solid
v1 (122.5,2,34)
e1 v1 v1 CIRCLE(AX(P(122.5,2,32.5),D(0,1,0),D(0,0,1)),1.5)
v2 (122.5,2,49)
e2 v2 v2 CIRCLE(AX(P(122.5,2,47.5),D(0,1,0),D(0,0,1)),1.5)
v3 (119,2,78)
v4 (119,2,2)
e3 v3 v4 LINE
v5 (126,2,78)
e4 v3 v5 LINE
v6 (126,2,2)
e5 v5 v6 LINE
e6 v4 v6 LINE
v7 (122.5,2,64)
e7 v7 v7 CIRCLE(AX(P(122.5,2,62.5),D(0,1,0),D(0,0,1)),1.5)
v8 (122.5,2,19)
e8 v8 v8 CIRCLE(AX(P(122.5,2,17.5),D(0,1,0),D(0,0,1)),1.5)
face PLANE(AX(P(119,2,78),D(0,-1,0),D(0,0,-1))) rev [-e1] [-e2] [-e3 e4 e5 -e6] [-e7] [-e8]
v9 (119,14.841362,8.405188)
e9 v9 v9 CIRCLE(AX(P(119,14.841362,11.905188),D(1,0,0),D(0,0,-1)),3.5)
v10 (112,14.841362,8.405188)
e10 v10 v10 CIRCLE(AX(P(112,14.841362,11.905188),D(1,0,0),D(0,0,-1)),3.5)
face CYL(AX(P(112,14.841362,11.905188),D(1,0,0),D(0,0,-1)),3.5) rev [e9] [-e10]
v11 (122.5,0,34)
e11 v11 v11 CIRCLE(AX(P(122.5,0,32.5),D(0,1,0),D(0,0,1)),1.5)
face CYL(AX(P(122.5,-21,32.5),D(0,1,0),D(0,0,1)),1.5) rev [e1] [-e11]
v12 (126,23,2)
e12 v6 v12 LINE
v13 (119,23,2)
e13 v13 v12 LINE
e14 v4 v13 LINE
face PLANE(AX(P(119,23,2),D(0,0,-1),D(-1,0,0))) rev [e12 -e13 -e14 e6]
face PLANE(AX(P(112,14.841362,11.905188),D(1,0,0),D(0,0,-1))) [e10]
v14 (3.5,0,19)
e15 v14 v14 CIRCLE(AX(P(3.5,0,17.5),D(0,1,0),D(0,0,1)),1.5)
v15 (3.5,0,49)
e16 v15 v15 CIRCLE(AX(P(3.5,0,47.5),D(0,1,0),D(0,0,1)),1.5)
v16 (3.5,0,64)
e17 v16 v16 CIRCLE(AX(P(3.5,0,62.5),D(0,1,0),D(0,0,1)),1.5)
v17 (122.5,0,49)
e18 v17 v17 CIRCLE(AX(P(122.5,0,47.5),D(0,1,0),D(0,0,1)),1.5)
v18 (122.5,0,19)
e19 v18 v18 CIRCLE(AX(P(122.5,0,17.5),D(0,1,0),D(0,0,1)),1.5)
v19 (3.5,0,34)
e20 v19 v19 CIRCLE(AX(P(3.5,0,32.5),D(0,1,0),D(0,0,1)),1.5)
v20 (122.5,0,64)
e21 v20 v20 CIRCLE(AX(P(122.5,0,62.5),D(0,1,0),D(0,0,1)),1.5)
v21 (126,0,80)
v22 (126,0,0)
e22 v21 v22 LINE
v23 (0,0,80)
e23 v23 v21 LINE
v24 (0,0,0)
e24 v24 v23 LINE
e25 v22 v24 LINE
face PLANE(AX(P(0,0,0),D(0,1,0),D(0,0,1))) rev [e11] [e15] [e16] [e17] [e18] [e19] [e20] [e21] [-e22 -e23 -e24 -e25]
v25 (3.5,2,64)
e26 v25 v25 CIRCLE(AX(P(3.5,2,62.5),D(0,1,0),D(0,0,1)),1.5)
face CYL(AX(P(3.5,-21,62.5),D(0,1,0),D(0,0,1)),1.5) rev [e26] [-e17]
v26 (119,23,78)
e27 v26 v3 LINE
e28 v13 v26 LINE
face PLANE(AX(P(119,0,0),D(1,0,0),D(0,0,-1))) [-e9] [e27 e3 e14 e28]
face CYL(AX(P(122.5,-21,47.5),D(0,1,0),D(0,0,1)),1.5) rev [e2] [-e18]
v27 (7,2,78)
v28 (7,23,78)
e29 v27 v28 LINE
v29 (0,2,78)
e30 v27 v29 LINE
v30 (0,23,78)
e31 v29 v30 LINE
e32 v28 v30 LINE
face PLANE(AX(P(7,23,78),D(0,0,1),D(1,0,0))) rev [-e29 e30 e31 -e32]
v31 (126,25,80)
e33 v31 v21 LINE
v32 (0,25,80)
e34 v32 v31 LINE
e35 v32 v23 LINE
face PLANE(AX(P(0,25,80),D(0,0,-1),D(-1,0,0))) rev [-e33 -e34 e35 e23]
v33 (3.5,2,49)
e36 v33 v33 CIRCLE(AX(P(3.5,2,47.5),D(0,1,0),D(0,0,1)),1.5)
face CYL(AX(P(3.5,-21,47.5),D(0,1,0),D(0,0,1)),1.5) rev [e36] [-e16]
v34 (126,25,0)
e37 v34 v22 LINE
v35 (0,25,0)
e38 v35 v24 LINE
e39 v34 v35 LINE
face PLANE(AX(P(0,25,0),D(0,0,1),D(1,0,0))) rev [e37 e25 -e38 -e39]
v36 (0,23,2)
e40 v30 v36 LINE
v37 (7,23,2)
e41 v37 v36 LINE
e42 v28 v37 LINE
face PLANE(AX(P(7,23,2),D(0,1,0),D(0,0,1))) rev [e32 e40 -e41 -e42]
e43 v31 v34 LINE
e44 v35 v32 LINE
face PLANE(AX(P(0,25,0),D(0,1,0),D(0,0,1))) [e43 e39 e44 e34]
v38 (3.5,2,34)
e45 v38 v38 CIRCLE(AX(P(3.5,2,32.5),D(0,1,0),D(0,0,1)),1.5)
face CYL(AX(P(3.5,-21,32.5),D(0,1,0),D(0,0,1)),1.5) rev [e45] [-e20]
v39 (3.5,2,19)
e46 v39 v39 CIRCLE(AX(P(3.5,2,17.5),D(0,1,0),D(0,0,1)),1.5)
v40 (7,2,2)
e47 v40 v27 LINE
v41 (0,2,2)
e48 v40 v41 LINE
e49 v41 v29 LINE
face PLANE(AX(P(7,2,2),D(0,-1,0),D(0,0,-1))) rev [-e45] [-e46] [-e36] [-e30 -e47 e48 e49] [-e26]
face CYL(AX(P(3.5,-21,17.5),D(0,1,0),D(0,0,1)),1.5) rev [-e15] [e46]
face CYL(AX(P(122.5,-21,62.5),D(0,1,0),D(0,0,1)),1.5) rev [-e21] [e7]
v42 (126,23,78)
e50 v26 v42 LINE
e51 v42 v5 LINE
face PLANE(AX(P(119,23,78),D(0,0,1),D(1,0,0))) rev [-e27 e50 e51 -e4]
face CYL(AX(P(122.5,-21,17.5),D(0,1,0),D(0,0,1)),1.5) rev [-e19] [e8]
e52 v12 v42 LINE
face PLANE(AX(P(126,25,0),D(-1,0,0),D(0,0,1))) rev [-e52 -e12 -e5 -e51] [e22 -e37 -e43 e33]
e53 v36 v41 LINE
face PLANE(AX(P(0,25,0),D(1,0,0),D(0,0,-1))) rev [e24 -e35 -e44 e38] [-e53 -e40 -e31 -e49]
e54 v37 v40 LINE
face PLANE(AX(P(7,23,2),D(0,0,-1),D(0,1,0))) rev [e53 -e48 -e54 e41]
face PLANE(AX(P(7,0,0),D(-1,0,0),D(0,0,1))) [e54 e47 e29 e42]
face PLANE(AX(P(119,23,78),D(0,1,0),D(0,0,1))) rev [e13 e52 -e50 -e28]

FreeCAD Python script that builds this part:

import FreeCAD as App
import Part
import Sketcher

V = App.Vector


def add_polygon(sketch, points):
    """Adds a closed chain of lines whose ends are joined by coincident constraints."""
    first, n = sketch.GeometryCount, len(points)
    for a, b in zip(points, points[1:] + points[:1]):
        sketch.addGeometry(Part.LineSegment(App.Vector(*a, 0), App.Vector(*b, 0)), False)
    for i in range(n):
        sketch.addConstraint(Sketcher.Constraint("Coincident", first + i, 2, first + (i + 1) % n, 1))

doc = App.newDocument("Part")
body = doc.addObject("PartDesign::Body", "Body")

# Sketch on XZ plane
sketch1 = body.newObject("Sketcher::SketchObject", "Sketch")
sketch1.AttachmentSupport = (doc.getObject("XZ_Plane"), [""])
sketch1.MapMode = "FlatFace"
add_polygon(sketch1, [(0, 0), (0, 80), (126, 80), (126, 0)])  # lines 0-3
sketch1.addConstraint([
    Sketcher.Constraint("Vertical", 0),
    Sketcher.Constraint("Horizontal", 1),
    Sketcher.Constraint("Vertical", 2),
    Sketcher.Constraint("Horizontal", 3),
    Sketcher.Constraint("Coincident", 3, 2, -1, 1),
    Sketcher.Constraint("DistanceX", 1, 1, 1, 2, 126.0),
    Sketcher.Constraint("DistanceY", 0, 1, 0, 2, 80.0),
])
pad1 = body.newObject("PartDesign::Pad", "Pad")
pad1.Profile = sketch1
pad1.Length = 25
pad1.Reversed = True

# Sketch on YZ plane
sketch2 = body.newObject("Sketcher::SketchObject", "Sketch001")
sketch2.AttachmentSupport = (doc.getObject("YZ_Plane"), [""])
sketch2.MapMode = "FlatFace"
sketch2.AttachmentOffset = App.Placement(V(0, 0, 126), App.Rotation())
add_polygon(sketch2, [(23, 78), (2, 78), (2, 2), (23, 2)])  # lines 0-3
sketch2.addConstraint([
    Sketcher.Constraint("Horizontal", 0),
    Sketcher.Constraint("Vertical", 1),
    Sketcher.Constraint("Horizontal", 2),
    Sketcher.Constraint("Vertical", 3),
    Sketcher.Constraint("DistanceX", 0, 2, 0, 1, 21.0),
    Sketcher.Constraint("DistanceY", 1, 2, 1, 1, 76.0),
    Sketcher.Constraint("DistanceX", -1, 1, 0, 2, 2.0),
    Sketcher.Constraint("DistanceY", -1, 1, 0, 2, 78.0),
])
pocket1 = body.newObject("PartDesign::Pocket", "Pocket")
pocket1.Profile = sketch2
pocket1.Length = 7

# Sketch on YZ plane
sketch3 = body.newObject("Sketcher::SketchObject", "Sketch002")
sketch3.AttachmentSupport = (doc.getObject("YZ_Plane"), [""])
sketch3.MapMode = "FlatFace"
add_polygon(sketch3, [(23, 2), (2, 2), (2, 78), (23, 78)])  # lines 0-3
sketch3.addConstraint([
    Sketcher.Constraint("Horizontal", 0),
    Sketcher.Constraint("Vertical", 1),
    Sketcher.Constraint("Horizontal", 2),
    Sketcher.Constraint("Vertical", 3),
    Sketcher.Constraint("DistanceX", 0, 2, 0, 1, 21.0),
    Sketcher.Constraint("DistanceY", 1, 1, 1, 2, 76.0),
    Sketcher.Constraint("DistanceX", -1, 1, 0, 2, 2.0),
    Sketcher.Constraint("DistanceY", -1, 1, 0, 2, 2.0),
])
pocket2 = body.newObject("PartDesign::Pocket", "Pocket001")
pocket2.Profile = sketch3
pocket2.Length = 7
pocket2.Reversed = True

# Sketch on YZ plane
sketch4 = body.newObject("Sketcher::SketchObject", "Sketch003")
sketch4.AttachmentSupport = (doc.getObject("YZ_Plane"), [""])
sketch4.MapMode = "FlatFace"
sketch4.AttachmentOffset = App.Placement(V(0, 0, 119), App.Rotation())
sketch4.addGeometry(Part.Circle(V(14.841362, 11.905188, 0), V(0, 0, 1), 3.5), False)
sketch4.addConstraint([
    Sketcher.Constraint("Diameter", 0, 7.0),
    Sketcher.Constraint("DistanceX", -1, 1, 0, 3, 14.841362),
    Sketcher.Constraint("DistanceY", -1, 1, 0, 3, 11.905188),
])
pocket3 = body.newObject("PartDesign::Pocket", "Pocket002")
pocket3.Profile = sketch4
pocket3.Length = 7

# Sketch on XZ plane
sketch5 = body.newObject("Sketcher::SketchObject", "Sketch004")
sketch5.AttachmentSupport = (doc.getObject("XZ_Plane"), [""])
sketch5.MapMode = "FlatFace"
sketch5.AttachmentOffset = App.Placement(V(0, 0, -2), App.Rotation())
sketch5.addGeometry([
    Part.Circle(V(122.5, 17.5, 0), V(0, 0, 1), 1.5),
    Part.Circle(V(122.5, 32.5, 0), V(0, 0, 1), 1.5),
    Part.Circle(V(122.5, 47.5, 0), V(0, 0, 1), 1.5),
    Part.Circle(V(122.5, 62.5, 0), V(0, 0, 1), 1.5),
], False)
sketch5.addConstraint([
    Sketcher.Constraint("Equal", 0, 1),
    Sketcher.Constraint("Equal", 1, 2),
    Sketcher.Constraint("Equal", 2, 3),
    Sketcher.Constraint("Vertical", 0, 3, 1, 3),
    Sketcher.Constraint("Vertical", 1, 3, 2, 3),
    Sketcher.Constraint("Vertical", 2, 3, 3, 3),
    Sketcher.Constraint("Diameter", 0, 3.0),
    Sketcher.Constraint("DistanceY", 0, 3, 1, 3, 15.0),
    Sketcher.Constraint("DistanceY", 1, 3, 2, 3, 15.0),
    Sketcher.Constraint("DistanceY", 2, 3, 3, 3, 15.0),
    Sketcher.Constraint("DistanceX", -1, 1, 0, 3, 122.5),
    Sketcher.Constraint("DistanceY", -1, 1, 0, 3, 17.5),
])
pocket4 = body.newObject("PartDesign::Pocket", "Pocket003")
pocket4.Profile = sketch5
pocket4.Length = 23
pocket4.Reversed = True

# Sketch on XZ plane
sketch6 = body.newObject("Sketcher::SketchObject", "Sketch005")
sketch6.AttachmentSupport = (doc.getObject("XZ_Plane"), [""])
sketch6.MapMode = "FlatFace"
sketch6.AttachmentOffset = App.Placement(V(0, 0, -2), App.Rotation())
sketch6.addGeometry([
    Part.Circle(V(3.5, 17.5, 0), V(0, 0, 1), 1.5),
    Part.Circle(V(3.5, 32.5, 0), V(0, 0, 1), 1.5),
    Part.Circle(V(3.5, 47.5, 0), V(0, 0, 1), 1.5),
    Part.Circle(V(3.5, 62.5, 0), V(0, 0, 1), 1.5),
], False)
sketch6.addConstraint([
    Sketcher.Constraint("Equal", 0, 1),
    Sketcher.Constraint("Equal", 1, 2),
    Sketcher.Constraint("Equal", 2, 3),
    Sketcher.Constraint("Vertical", 0, 3, 1, 3),
    Sketcher.Constraint("Vertical", 1, 3, 2, 3),
    Sketcher.Constraint("Vertical", 2, 3, 3, 3),
    Sketcher.Constraint("Diameter", 0, 3.0),
    Sketcher.Constraint("DistanceY", 0, 3, 1, 3, 15.0),
    Sketcher.Constraint("DistanceY", 1, 3, 2, 3, 15.0),
    Sketcher.Constraint("DistanceY", 2, 3, 3, 3, 15.0),
    Sketcher.Constraint("DistanceX", -1, 1, 0, 3, 3.5),
    Sketcher.Constraint("DistanceY", -1, 1, 0, 3, 17.5),
])
pocket5 = body.newObject("PartDesign::Pocket", "Pocket004")
pocket5.Profile = sketch6
pocket5.Length = 23
pocket5.Reversed = True

doc.recompute()
